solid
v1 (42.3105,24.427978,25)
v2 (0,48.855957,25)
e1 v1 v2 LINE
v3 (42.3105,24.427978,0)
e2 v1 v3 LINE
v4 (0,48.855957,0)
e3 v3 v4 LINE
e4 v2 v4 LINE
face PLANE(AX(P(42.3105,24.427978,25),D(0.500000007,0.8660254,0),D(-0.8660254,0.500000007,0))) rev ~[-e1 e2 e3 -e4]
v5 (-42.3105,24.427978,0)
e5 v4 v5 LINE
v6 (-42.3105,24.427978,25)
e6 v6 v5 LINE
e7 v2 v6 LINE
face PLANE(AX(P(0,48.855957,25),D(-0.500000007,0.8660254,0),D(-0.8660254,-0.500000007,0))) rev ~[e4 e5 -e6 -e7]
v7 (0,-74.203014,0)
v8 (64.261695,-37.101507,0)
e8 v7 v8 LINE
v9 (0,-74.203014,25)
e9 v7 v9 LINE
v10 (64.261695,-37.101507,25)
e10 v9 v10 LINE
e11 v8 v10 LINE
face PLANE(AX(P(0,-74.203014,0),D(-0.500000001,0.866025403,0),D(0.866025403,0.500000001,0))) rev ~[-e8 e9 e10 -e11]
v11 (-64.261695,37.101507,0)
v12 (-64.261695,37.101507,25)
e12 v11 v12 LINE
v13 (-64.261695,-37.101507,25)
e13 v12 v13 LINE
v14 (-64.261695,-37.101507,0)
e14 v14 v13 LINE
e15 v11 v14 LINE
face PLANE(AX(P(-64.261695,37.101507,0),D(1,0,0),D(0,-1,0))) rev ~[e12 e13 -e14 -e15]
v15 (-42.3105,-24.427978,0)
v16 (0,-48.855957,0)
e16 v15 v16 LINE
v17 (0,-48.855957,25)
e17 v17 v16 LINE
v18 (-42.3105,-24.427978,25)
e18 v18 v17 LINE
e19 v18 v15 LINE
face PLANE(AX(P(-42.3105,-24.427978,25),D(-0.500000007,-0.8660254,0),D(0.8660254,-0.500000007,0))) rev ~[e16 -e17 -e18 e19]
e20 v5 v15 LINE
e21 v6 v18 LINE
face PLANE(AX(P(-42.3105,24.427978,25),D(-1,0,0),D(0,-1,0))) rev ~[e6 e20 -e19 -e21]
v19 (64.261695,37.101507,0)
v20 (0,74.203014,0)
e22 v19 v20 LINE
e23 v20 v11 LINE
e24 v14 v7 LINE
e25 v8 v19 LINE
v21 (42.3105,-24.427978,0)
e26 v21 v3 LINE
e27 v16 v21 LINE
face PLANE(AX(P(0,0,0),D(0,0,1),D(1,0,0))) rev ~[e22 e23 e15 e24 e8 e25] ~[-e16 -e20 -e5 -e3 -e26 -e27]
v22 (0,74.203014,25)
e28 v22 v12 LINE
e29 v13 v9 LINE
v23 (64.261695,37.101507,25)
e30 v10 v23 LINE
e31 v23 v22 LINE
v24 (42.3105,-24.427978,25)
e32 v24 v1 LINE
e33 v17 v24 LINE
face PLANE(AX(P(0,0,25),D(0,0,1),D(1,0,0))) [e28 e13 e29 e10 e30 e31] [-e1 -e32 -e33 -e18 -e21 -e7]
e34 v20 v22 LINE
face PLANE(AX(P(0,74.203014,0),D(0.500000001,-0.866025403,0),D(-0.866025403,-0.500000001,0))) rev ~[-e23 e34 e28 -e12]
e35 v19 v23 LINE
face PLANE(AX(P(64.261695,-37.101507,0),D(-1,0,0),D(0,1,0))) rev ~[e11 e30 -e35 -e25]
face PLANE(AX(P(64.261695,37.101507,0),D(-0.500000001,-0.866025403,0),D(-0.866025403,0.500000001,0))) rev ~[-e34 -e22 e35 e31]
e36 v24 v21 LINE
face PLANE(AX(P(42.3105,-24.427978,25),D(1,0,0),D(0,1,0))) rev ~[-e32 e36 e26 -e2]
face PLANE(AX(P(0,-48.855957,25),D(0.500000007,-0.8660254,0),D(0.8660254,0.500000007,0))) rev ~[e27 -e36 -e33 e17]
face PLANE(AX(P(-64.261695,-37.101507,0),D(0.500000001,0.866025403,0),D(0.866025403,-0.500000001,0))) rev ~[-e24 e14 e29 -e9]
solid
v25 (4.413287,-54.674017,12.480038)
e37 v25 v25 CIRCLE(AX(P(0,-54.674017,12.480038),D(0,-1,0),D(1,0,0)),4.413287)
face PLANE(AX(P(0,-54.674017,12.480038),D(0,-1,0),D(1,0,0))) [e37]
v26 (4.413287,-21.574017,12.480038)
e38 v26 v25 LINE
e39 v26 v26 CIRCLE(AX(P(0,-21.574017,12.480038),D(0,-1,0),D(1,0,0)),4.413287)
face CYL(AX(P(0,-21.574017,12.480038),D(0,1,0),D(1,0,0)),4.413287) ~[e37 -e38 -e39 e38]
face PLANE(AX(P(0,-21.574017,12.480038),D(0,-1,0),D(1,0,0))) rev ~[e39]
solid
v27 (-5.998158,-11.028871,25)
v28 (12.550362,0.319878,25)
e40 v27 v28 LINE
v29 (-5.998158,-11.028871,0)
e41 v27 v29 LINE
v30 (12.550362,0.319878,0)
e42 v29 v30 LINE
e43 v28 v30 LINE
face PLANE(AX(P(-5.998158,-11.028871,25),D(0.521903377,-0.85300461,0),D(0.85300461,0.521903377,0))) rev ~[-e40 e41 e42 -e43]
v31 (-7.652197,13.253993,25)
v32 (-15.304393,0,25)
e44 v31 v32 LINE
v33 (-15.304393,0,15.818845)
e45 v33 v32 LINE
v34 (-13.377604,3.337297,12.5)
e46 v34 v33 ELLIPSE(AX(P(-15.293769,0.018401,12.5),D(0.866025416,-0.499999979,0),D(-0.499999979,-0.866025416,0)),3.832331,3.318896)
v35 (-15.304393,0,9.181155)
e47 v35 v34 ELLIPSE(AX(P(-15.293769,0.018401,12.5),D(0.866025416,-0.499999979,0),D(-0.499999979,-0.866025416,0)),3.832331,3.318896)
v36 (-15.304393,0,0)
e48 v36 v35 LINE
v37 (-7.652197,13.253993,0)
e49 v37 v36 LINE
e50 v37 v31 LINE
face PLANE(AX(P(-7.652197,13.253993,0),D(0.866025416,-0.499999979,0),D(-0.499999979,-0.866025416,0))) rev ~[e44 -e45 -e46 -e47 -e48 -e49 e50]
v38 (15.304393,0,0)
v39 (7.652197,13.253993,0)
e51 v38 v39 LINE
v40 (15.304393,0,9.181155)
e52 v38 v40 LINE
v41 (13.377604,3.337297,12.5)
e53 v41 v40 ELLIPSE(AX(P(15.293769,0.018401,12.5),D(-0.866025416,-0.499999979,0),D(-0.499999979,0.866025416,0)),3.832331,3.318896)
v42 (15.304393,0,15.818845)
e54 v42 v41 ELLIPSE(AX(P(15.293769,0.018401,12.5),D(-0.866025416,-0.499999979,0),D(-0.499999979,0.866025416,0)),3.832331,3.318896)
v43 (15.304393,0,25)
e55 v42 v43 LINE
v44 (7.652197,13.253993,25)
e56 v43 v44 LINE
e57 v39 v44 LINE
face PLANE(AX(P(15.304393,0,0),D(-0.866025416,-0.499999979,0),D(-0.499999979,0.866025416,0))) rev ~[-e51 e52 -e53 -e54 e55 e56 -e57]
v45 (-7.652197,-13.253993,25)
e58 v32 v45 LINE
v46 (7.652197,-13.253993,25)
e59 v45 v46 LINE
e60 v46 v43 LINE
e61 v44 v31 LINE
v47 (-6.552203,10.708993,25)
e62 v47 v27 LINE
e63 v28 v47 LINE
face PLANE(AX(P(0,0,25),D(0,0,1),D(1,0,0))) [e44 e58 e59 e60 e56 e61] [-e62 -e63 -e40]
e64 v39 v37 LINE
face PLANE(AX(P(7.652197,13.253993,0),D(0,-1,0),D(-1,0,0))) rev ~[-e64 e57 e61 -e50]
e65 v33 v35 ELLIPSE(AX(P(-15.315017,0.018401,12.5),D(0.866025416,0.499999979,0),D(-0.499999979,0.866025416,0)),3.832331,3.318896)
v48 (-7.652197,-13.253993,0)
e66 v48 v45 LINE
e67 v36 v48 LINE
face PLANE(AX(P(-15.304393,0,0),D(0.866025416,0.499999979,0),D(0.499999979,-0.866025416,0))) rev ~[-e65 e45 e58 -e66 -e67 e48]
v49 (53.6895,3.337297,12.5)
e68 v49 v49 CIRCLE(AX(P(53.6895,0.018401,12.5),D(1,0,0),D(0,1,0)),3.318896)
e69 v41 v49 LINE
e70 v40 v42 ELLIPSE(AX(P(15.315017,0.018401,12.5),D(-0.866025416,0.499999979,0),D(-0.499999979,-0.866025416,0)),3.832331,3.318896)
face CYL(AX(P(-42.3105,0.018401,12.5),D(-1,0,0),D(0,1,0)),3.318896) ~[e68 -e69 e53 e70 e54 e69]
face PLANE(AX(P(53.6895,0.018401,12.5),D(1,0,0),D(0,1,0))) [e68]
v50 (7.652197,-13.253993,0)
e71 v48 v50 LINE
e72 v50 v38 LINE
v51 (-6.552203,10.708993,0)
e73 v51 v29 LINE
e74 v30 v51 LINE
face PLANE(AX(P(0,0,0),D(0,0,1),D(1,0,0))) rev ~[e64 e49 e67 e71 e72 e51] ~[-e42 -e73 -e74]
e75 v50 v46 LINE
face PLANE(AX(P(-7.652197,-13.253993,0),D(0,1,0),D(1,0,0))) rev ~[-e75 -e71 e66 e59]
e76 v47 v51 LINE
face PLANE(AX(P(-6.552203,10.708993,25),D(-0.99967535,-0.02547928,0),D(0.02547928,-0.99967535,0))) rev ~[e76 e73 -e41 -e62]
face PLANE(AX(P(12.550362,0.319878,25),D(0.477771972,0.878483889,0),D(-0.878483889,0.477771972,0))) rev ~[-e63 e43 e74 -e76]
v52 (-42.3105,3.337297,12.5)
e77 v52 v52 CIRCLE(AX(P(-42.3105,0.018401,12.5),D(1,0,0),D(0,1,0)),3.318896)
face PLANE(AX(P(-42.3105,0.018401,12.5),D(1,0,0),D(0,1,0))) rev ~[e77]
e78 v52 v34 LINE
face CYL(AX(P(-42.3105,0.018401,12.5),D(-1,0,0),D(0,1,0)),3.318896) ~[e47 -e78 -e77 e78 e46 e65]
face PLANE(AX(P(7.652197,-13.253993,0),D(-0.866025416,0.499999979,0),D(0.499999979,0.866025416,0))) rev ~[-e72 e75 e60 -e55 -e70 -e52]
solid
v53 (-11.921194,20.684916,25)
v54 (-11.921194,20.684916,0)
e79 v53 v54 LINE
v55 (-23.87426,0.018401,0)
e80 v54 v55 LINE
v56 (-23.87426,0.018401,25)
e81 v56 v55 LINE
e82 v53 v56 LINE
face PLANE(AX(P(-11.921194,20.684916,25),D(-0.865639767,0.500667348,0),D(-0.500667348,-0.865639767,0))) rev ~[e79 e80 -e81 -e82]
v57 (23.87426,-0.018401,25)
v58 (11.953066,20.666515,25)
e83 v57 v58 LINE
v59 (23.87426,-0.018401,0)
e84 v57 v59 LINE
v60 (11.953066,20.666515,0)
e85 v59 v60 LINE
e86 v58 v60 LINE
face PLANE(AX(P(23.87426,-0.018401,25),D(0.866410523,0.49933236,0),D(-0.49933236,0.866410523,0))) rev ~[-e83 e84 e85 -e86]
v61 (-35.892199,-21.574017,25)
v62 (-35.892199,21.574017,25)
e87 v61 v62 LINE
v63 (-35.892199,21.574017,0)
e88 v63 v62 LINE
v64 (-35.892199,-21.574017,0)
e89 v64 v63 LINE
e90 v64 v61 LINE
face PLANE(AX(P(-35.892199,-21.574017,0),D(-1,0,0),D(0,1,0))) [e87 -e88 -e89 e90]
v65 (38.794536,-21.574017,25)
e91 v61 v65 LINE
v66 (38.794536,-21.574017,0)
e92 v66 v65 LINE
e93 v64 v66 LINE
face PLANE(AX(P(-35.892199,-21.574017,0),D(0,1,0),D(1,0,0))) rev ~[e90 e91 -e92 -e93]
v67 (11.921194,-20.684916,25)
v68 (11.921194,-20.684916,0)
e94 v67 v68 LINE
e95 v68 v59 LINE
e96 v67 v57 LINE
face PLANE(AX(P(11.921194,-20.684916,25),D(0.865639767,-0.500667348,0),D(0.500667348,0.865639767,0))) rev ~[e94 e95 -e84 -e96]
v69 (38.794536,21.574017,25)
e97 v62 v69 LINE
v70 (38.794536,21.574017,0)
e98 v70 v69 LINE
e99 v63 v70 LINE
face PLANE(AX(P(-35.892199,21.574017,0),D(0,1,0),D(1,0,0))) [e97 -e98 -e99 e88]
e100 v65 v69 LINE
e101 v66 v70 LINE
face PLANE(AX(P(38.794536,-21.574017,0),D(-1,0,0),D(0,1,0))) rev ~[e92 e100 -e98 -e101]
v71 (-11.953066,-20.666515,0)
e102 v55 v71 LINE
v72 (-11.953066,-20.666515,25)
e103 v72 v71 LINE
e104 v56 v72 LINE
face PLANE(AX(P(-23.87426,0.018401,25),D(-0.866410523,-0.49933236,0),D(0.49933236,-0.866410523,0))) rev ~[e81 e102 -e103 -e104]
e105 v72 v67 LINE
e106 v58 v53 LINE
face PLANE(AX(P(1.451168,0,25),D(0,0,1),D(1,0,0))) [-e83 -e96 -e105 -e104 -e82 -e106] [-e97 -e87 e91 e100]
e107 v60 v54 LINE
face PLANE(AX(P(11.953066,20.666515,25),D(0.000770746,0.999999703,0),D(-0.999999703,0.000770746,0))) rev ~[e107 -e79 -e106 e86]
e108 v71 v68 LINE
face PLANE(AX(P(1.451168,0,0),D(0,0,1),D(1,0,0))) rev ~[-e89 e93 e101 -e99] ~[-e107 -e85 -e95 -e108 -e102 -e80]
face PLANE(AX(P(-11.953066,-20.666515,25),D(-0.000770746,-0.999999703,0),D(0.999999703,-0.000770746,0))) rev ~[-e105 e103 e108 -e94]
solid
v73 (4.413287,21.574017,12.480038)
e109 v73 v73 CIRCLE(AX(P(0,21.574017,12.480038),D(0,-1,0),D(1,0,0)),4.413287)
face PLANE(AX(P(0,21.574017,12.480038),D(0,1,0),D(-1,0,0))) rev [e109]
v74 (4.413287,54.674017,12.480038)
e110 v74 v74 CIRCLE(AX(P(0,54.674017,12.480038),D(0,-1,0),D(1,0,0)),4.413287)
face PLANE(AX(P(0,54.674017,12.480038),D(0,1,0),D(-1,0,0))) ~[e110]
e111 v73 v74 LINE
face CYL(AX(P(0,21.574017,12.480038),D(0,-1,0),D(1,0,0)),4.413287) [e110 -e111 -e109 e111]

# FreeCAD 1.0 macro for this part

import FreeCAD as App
import Part
import Sketcher

V = App.Vector
Q = App.Units.Quantity

doc = App.newDocument("Part")
body = doc.addObject("PartDesign::Body", "Body")

sketch1 = doc.addObject("Sketcher::SketchObject", "Sketch")
body.addObject(sketch1)
sketch1.AttachmentSupport = (doc.XY_Plane, [""])
sketch1.MapMode = "FlatFace"
sketch1.addGeometry(Part.LineSegment(V(64, 37, 0), V(0, 74, 0)), False)
sketch1.addGeometry(Part.LineSegment(V(0, 74, 0), V(-64, 37, 0)), False)
sketch1.addGeometry(Part.LineSegment(V(-64, 37, 0), V(-64, -37, 0)), False)
sketch1.addGeometry(Part.LineSegment(V(-64, -37, 0), V(0, -74, 0)), False)
sketch1.addGeometry(Part.LineSegment(V(0, -74, 0), V(64, -37, 0)), False)
sketch1.addGeometry(Part.LineSegment(V(64, -37, 0), V(64, 37, 0)), False)
sketch1.addConstraint(Sketcher.Constraint("Coincident", 0, 2, 1, 1))
sketch1.addConstraint(Sketcher.Constraint("Coincident", 1, 2, 2, 1))
sketch1.addConstraint(Sketcher.Constraint("Coincident", 2, 2, 3, 1))
sketch1.addConstraint(Sketcher.Constraint("Coincident", 3, 2, 4, 1))
sketch1.addConstraint(Sketcher.Constraint("Coincident", 4, 2, 5, 1))
sketch1.addConstraint(Sketcher.Constraint("Coincident", 5, 2, 0, 1))
sketch1.addConstraint(Sketcher.Constraint("Vertical", 2))
sketch1.addConstraint(Sketcher.Constraint("Vertical", 5))
sketch1.addConstraint(Sketcher.Constraint("Symmetric", 0, 2, 3, 2, -1, 1))
sketch1.addConstraint(Sketcher.Constraint("Symmetric", 1, 2, 4, 2, -1, 1))
sketch1.addConstraint(Sketcher.Constraint("PointOnObject", 0, 2, -2))
sketch1.addConstraint(Sketcher.Constraint("Parallel", 0, 3))
sketch1.addConstraint(Sketcher.Constraint("Horizontal", 2, 2, 4, 2))
sketch1.addConstraint(Sketcher.Constraint("Angle", 0, Q("150 deg")))
sketch1.addConstraint(Sketcher.Constraint("DistanceY", 2, 2, 2, 1, 74.203014))
sketch1.addConstraint(Sketcher.Constraint("DistanceY", 2, 2, 0, 2, 111.304521))
pad1 = doc.addObject("PartDesign::Pad", "Pad")
body.addObject(pad1)
pad1.Profile = sketch1
pad1.Length = 25

sketch2 = doc.addObject("Sketcher::SketchObject", "Sketch001")
body.addObject(sketch2)
sketch2.AttachmentSupport = (doc.XY_Plane, [""])
sketch2.MapMode = "FlatFace"
sketch2.AttachmentOffset = App.Placement(V(0, 0, 25), App.Rotation())
sketch2.addGeometry(Part.LineSegment(V(42, 24, 0), V(0, 49, 0)), False)
sketch2.addGeometry(Part.LineSegment(V(0, 49, 0), V(-42, 24, 0)), False)
sketch2.addGeometry(Part.LineSegment(V(-42, 24, 0), V(-42, -24, 0)), False)
sketch2.addGeometry(Part.LineSegment(V(-42, -24, 0), V(0, -49, 0)), False)
sketch2.addGeometry(Part.LineSegment(V(0, -49, 0), V(42, -24, 0)), False)
sketch2.addGeometry(Part.LineSegment(V(42, -24, 0), V(42, 24, 0)), False)
sketch2.addConstraint(Sketcher.Constraint("Coincident", 0, 2, 1, 1))
sketch2.addConstraint(Sketcher.Constraint("Coincident", 1, 2, 2, 1))
sketch2.addConstraint(Sketcher.Constraint("Coincident", 2, 2, 3, 1))
sketch2.addConstraint(Sketcher.Constraint("Coincident", 3, 2, 4, 1))
sketch2.addConstraint(Sketcher.Constraint("Coincident", 4, 2, 5, 1))
sketch2.addConstraint(Sketcher.Constraint("Coincident", 5, 2, 0, 1))
sketch2.addConstraint(Sketcher.Constraint("Vertical", 2))
sketch2.addConstraint(Sketcher.Constraint("Vertical", 5))
sketch2.addConstraint(Sketcher.Constraint("Symmetric", 0, 2, 3, 2, -1, 1))
sketch2.addConstraint(Sketcher.Constraint("Symmetric", 1, 2, 4, 2, -1, 1))
sketch2.addConstraint(Sketcher.Constraint("PointOnObject", 0, 2, -2))
sketch2.addConstraint(Sketcher.Constraint("Parallel", 0, 3))
sketch2.addConstraint(Sketcher.Constraint("Horizontal", 2, 2, 4, 2))
sketch2.addConstraint(Sketcher.Constraint("Angle", 0, Q("150 deg")))
sketch2.addConstraint(Sketcher.Constraint("DistanceX", 2, 2, 4, 2, 84.621))
sketch2.addConstraint(Sketcher.Constraint("DistanceY", 2, 2, 2, 1, 48.855956))
pocket1 = doc.addObject("PartDesign::Pocket", "Pocket")
body.addObject(pocket1)
pocket1.Profile = sketch2
pocket1.Length = 35.3
body2 = doc.addObject("PartDesign::Body", "Body001")

sketch3 = doc.addObject("Sketcher::SketchObject", "Sketch002")
body2.addObject(sketch3)
sketch3.AttachmentSupport = (doc.getObject("XY_Plane001"), [""])
sketch3.MapMode = "FlatFace"
sketch3.addGeometry(Part.LineSegment(V(-36, 22, 0), V(-36, -22, 0)), False)
sketch3.addGeometry(Part.LineSegment(V(-36, -22, 0), V(39, -22, 0)), False)
sketch3.addGeometry(Part.LineSegment(V(39, -22, 0), V(39, 22, 0)), False)
sketch3.addGeometry(Part.LineSegment(V(39, 22, 0), V(-36, 22, 0)), False)
sketch3.addConstraint(Sketcher.Constraint("Coincident", 0, 2, 1, 1))
sketch3.addConstraint(Sketcher.Constraint("Coincident", 1, 2, 2, 1))
sketch3.addConstraint(Sketcher.Constraint("Coincident", 2, 2, 3, 1))
sketch3.addConstraint(Sketcher.Constraint("Coincident", 3, 2, 0, 1))
sketch3.addConstraint(Sketcher.Constraint("Vertical", 0))
sketch3.addConstraint(Sketcher.Constraint("Horizontal", 1))
sketch3.addConstraint(Sketcher.Constraint("Vertical", 2))
sketch3.addConstraint(Sketcher.Constraint("Horizontal", 3))
sketch3.addConstraint(Sketcher.Constraint("DistanceX", 0, 2, -1, 1, 35.892199))
sketch3.addConstraint(Sketcher.Constraint("DistanceX", 1, 1, 1, 2, 74.686735))
sketch3.addConstraint(Sketcher.Constraint("DistanceY", 0, 2, 0, 1, 43.148034))
sketch3.addConstraint(Sketcher.Constraint("DistanceY", 0, 2, -1, 1, 21.574017))
pad2 = doc.addObject("PartDesign::Pad", "Pad001")
body2.addObject(pad2)
pad2.Profile = sketch3
pad2.Length = 25

sketch4 = doc.addObject("Sketcher::SketchObject", "Sketch003")
body2.addObject(sketch4)
sketch4.AttachmentSupport = (doc.getObject("XY_Plane001"), [""])
sketch4.MapMode = "FlatFace"
sketch4.AttachmentOffset = App.Placement(V(0, 0, 25), App.Rotation())
sketch4.addGeometry(Part.LineSegment(V(-12, 21, 0), V(-24, 0, 0)), False)
sketch4.addGeometry(Part.LineSegment(V(-24, 0, 0), V(-12, -21, 0)), False)
sketch4.addGeometry(Part.LineSegment(V(-12, -21, 0), V(12, -21, 0)), False)
sketch4.addGeometry(Part.LineSegment(V(12, -21, 0), V(24, 0, 0)), False)
sketch4.addGeometry(Part.LineSegment(V(24, 0, 0), V(12, 21, 0)), False)
sketch4.addGeometry(Part.LineSegment(V(12, 21, 0), V(-12, 21, 0)), False)
sketch4.addConstraint(Sketcher.Constraint("Coincident", 0, 2, 1, 1))
sketch4.addConstraint(Sketcher.Constraint("Coincident", 1, 2, 2, 1))
sketch4.addConstraint(Sketcher.Constraint("Coincident", 2, 2, 3, 1))
sketch4.addConstraint(Sketcher.Constraint("Coincident", 3, 2, 4, 1))
sketch4.addConstraint(Sketcher.Constraint("Coincident", 4, 2, 5, 1))
sketch4.addConstraint(Sketcher.Constraint("Coincident", 5, 2, 0, 1))
sketch4.addConstraint(Sketcher.Constraint("Symmetric", 0, 2, 3, 2, -1, 1))
sketch4.addConstraint(Sketcher.Constraint("Symmetric", 1, 2, 4, 2, -1, 1))
sketch4.addConstraint(Sketcher.Constraint("Symmetric", 2, 2, 5, 2, -1, 1))
sketch4.addConstraint(Sketcher.Constraint("Equal", 0, 1))
sketch4.addConstraint(Sketcher.Constraint("Equal", 1, 2))
sketch4.addConstraint(Sketcher.Constraint("DistanceY", -1, 1, 0, 2, 0.018401))
sketch4.addConstraint(Sketcher.Constraint("DistanceY", 2, 2, 1, 2, 0.018401))
sketch4.addConstraint(Sketcher.Constraint("DistanceX", 0, 2, -1, 1, 23.87426))
sketch4.addConstraint(Sketcher.Constraint("DistanceX", 1, 2, 2, 2, 23.87426))
pocket2 = doc.addObject("PartDesign::Pocket", "Pocket001")
body2.addObject(pocket2)
pocket2.Profile = sketch4
pocket2.Length = 33.1
body3 = doc.addObject("PartDesign::Body", "Body002")

sketch5 = doc.addObject("Sketcher::SketchObject", "Sketch004")
body3.addObject(sketch5)
sketch5.AttachmentSupport = (doc.getObject("XZ_Plane002"), [""])
sketch5.MapMode = "FlatFace"
sketch5.AttachmentOffset = App.Placement(V(0, 0, 21.574017), App.Rotation())
sketch5.addGeometry(Part.Circle(V(0, 12.5, 0), V(0, 0, 1), 4.4), False)
sketch5.addConstraint(Sketcher.Constraint("PointOnObject", 0, 3, -2))
sketch5.addConstraint(Sketcher.Constraint("Diameter", 0, 8.826574))
sketch5.addConstraint(Sketcher.Constraint("DistanceY", -1, 1, 0, 3, 12.480038))
pad3 = doc.addObject("PartDesign::Pad", "Pad002")
body3.addObject(pad3)
pad3.Profile = sketch5
pad3.Length = 33.1
body4 = doc.addObject("PartDesign::Body", "Body003")
doc.recompute()

mirroring = doc.addObject("Part::Mirroring", "Mirroring")
mirroring.Source = body3
mirroring.Base = V(0, 0, 0)
mirroring.Normal = V(0, -1, 0)
body4.BaseFeature = mirroring
doc.recompute()
body5 = doc.addObject("PartDesign::Body", "Body004")

sketch6 = doc.addObject("Sketcher::SketchObject", "Sketch005")
body5.addObject(sketch6)
sketch6.AttachmentSupport = (doc.getObject("YZ_Plane004"), [""])
sketch6.MapMode = "FlatFace"
sketch6.AttachmentOffset = App.Placement(V(0, 0, -42.3105), App.Rotation())
sketch6.addGeometry(Part.Circle(V(0, 12.5, 0), V(0, 0, 1), 3.3), False)
sketch6.addConstraint(Sketcher.Constraint("DistanceY", -1, 1, 0, 3, 12.5))
sketch6.addConstraint(Sketcher.Constraint("Diameter", 0, 6.637792))
sketch6.addConstraint(Sketcher.Constraint("DistanceX", -1, 1, 0, 3, 0.018401))
pad4 = doc.addObject("PartDesign::Pad", "Pad003")
body5.addObject(pad4)
pad4.Profile = sketch6
pad4.Length = 96

sketch7 = doc.addObject("Sketcher::SketchObject", "Sketch006")
body5.addObject(sketch7)
sketch7.AttachmentSupport = (doc.getObject("XY_Plane004"), [""])
sketch7.MapMode = "FlatFace"
sketch7.addGeometry(Part.LineSegment(V(8, 13, 0), V(-8, 13, 0)), False)
sketch7.addGeometry(Part.LineSegment(V(-8, 13, 0), V(-15, 0, 0)), False)
sketch7.addGeometry(Part.LineSegment(V(-15, 0, 0), V(-8, -13, 0)), False)
sketch7.addGeometry(Part.LineSegment(V(-8, -13, 0), V(8, -13, 0)), False)
sketch7.addGeometry(Part.LineSegment(V(8, -13, 0), V(15, 0, 0)), False)
sketch7.addGeometry(Part.LineSegment(V(15, 0, 0), V(8, 13, 0)), False)
sketch7.addConstraint(Sketcher.Constraint("Coincident", 0, 2, 1, 1))
sketch7.addConstraint(Sketcher.Constraint("Coincident", 1, 2, 2, 1))
sketch7.addConstraint(Sketcher.Constraint("Coincident", 2, 2, 3, 1))
sketch7.addConstraint(Sketcher.Constraint("Coincident", 3, 2, 4, 1))
sketch7.addConstraint(Sketcher.Constraint("Coincident", 4, 2, 5, 1))
sketch7.addConstraint(Sketcher.Constraint("Coincident", 5, 2, 0, 1))
sketch7.addConstraint(Sketcher.Constraint("Horizontal", 0))
sketch7.addConstraint(Sketcher.Constraint("Horizontal", 3))
sketch7.addConstraint(Sketcher.Constraint("Symmetric", 0, 2, 3, 2, -1, 1))
sketch7.addConstraint(Sketcher.Constraint("Symmetric", 1, 2, 4, 2, -1, 1))
sketch7.addConstraint(Sketcher.Constraint("PointOnObject", 1, 2, -1))
sketch7.addConstraint(Sketcher.Constraint("Parallel", 2, 5))
sketch7.addConstraint(Sketcher.Constraint("Vertical", 0, 2, 2, 2))
sketch7.addConstraint(Sketcher.Constraint("Angle", 1, Q("-119.999999 deg")))
sketch7.addConstraint(Sketcher.Constraint("DistanceX", 0, 2, 0, 1, 15.304394))
sketch7.addConstraint(Sketcher.Constraint("DistanceX", 1, 2, 3, 2, 22.95659))
pad5 = doc.addObject("PartDesign::Pad", "Pad004")
body5.addObject(pad5)
pad5.Profile = sketch7
pad5.Length = 25

sketch8 = doc.addObject("Sketcher::SketchObject", "Sketch007")
body5.addObject(sketch8)
sketch8.AttachmentSupport = (doc.getObject("XY_Plane004"), [""])
sketch8.MapMode = "FlatFace"
sketch8.AttachmentOffset = App.Placement(V(0, 0, 25), App.Rotation())
sketch8.addGeometry(Part.LineSegment(V(13, 0, 0), V(-7, 11, 0)), False)
sketch8.addGeometry(Part.LineSegment(V(-7, 11, 0), V(-6, -11, 0)), False)
sketch8.addGeometry(Part.LineSegment(V(-6, -11, 0), V(13, 0, 0)), False)
sketch8.addConstraint(Sketcher.Constraint("Coincident", 0, 2, 1, 1))
sketch8.addConstraint(Sketcher.Constraint("Coincident", 1, 2, 2, 1))
sketch8.addConstraint(Sketcher.Constraint("Coincident", 2, 2, 0, 1))
sketch8.addConstraint(Sketcher.Constraint("Equal", 0, 1))
sketch8.addConstraint(Sketcher.Constraint("Equal", 1, 2))
sketch8.addConstraint(Sketcher.Constraint("Angle", 0, Q("151.460013 deg")))
sketch8.addConstraint(Sketcher.Constraint("DistanceY", 1, 2, -1, 1, 11.028871))
sketch8.addConstraint(Sketcher.Constraint("DistanceX", 1, 2, 2, 2, 18.54852))
sketch8.addConstraint(Sketcher.Constraint("DistanceX", 0, 2, -1, 1, 6.552203))
pocket3 = doc.addObject("PartDesign::Pocket", "Pocket002")
body5.addObject(pocket3)
pocket3.Profile = sketch8
pocket3.Length = 25
mirroring.Visibility = False

doc.recompute()
